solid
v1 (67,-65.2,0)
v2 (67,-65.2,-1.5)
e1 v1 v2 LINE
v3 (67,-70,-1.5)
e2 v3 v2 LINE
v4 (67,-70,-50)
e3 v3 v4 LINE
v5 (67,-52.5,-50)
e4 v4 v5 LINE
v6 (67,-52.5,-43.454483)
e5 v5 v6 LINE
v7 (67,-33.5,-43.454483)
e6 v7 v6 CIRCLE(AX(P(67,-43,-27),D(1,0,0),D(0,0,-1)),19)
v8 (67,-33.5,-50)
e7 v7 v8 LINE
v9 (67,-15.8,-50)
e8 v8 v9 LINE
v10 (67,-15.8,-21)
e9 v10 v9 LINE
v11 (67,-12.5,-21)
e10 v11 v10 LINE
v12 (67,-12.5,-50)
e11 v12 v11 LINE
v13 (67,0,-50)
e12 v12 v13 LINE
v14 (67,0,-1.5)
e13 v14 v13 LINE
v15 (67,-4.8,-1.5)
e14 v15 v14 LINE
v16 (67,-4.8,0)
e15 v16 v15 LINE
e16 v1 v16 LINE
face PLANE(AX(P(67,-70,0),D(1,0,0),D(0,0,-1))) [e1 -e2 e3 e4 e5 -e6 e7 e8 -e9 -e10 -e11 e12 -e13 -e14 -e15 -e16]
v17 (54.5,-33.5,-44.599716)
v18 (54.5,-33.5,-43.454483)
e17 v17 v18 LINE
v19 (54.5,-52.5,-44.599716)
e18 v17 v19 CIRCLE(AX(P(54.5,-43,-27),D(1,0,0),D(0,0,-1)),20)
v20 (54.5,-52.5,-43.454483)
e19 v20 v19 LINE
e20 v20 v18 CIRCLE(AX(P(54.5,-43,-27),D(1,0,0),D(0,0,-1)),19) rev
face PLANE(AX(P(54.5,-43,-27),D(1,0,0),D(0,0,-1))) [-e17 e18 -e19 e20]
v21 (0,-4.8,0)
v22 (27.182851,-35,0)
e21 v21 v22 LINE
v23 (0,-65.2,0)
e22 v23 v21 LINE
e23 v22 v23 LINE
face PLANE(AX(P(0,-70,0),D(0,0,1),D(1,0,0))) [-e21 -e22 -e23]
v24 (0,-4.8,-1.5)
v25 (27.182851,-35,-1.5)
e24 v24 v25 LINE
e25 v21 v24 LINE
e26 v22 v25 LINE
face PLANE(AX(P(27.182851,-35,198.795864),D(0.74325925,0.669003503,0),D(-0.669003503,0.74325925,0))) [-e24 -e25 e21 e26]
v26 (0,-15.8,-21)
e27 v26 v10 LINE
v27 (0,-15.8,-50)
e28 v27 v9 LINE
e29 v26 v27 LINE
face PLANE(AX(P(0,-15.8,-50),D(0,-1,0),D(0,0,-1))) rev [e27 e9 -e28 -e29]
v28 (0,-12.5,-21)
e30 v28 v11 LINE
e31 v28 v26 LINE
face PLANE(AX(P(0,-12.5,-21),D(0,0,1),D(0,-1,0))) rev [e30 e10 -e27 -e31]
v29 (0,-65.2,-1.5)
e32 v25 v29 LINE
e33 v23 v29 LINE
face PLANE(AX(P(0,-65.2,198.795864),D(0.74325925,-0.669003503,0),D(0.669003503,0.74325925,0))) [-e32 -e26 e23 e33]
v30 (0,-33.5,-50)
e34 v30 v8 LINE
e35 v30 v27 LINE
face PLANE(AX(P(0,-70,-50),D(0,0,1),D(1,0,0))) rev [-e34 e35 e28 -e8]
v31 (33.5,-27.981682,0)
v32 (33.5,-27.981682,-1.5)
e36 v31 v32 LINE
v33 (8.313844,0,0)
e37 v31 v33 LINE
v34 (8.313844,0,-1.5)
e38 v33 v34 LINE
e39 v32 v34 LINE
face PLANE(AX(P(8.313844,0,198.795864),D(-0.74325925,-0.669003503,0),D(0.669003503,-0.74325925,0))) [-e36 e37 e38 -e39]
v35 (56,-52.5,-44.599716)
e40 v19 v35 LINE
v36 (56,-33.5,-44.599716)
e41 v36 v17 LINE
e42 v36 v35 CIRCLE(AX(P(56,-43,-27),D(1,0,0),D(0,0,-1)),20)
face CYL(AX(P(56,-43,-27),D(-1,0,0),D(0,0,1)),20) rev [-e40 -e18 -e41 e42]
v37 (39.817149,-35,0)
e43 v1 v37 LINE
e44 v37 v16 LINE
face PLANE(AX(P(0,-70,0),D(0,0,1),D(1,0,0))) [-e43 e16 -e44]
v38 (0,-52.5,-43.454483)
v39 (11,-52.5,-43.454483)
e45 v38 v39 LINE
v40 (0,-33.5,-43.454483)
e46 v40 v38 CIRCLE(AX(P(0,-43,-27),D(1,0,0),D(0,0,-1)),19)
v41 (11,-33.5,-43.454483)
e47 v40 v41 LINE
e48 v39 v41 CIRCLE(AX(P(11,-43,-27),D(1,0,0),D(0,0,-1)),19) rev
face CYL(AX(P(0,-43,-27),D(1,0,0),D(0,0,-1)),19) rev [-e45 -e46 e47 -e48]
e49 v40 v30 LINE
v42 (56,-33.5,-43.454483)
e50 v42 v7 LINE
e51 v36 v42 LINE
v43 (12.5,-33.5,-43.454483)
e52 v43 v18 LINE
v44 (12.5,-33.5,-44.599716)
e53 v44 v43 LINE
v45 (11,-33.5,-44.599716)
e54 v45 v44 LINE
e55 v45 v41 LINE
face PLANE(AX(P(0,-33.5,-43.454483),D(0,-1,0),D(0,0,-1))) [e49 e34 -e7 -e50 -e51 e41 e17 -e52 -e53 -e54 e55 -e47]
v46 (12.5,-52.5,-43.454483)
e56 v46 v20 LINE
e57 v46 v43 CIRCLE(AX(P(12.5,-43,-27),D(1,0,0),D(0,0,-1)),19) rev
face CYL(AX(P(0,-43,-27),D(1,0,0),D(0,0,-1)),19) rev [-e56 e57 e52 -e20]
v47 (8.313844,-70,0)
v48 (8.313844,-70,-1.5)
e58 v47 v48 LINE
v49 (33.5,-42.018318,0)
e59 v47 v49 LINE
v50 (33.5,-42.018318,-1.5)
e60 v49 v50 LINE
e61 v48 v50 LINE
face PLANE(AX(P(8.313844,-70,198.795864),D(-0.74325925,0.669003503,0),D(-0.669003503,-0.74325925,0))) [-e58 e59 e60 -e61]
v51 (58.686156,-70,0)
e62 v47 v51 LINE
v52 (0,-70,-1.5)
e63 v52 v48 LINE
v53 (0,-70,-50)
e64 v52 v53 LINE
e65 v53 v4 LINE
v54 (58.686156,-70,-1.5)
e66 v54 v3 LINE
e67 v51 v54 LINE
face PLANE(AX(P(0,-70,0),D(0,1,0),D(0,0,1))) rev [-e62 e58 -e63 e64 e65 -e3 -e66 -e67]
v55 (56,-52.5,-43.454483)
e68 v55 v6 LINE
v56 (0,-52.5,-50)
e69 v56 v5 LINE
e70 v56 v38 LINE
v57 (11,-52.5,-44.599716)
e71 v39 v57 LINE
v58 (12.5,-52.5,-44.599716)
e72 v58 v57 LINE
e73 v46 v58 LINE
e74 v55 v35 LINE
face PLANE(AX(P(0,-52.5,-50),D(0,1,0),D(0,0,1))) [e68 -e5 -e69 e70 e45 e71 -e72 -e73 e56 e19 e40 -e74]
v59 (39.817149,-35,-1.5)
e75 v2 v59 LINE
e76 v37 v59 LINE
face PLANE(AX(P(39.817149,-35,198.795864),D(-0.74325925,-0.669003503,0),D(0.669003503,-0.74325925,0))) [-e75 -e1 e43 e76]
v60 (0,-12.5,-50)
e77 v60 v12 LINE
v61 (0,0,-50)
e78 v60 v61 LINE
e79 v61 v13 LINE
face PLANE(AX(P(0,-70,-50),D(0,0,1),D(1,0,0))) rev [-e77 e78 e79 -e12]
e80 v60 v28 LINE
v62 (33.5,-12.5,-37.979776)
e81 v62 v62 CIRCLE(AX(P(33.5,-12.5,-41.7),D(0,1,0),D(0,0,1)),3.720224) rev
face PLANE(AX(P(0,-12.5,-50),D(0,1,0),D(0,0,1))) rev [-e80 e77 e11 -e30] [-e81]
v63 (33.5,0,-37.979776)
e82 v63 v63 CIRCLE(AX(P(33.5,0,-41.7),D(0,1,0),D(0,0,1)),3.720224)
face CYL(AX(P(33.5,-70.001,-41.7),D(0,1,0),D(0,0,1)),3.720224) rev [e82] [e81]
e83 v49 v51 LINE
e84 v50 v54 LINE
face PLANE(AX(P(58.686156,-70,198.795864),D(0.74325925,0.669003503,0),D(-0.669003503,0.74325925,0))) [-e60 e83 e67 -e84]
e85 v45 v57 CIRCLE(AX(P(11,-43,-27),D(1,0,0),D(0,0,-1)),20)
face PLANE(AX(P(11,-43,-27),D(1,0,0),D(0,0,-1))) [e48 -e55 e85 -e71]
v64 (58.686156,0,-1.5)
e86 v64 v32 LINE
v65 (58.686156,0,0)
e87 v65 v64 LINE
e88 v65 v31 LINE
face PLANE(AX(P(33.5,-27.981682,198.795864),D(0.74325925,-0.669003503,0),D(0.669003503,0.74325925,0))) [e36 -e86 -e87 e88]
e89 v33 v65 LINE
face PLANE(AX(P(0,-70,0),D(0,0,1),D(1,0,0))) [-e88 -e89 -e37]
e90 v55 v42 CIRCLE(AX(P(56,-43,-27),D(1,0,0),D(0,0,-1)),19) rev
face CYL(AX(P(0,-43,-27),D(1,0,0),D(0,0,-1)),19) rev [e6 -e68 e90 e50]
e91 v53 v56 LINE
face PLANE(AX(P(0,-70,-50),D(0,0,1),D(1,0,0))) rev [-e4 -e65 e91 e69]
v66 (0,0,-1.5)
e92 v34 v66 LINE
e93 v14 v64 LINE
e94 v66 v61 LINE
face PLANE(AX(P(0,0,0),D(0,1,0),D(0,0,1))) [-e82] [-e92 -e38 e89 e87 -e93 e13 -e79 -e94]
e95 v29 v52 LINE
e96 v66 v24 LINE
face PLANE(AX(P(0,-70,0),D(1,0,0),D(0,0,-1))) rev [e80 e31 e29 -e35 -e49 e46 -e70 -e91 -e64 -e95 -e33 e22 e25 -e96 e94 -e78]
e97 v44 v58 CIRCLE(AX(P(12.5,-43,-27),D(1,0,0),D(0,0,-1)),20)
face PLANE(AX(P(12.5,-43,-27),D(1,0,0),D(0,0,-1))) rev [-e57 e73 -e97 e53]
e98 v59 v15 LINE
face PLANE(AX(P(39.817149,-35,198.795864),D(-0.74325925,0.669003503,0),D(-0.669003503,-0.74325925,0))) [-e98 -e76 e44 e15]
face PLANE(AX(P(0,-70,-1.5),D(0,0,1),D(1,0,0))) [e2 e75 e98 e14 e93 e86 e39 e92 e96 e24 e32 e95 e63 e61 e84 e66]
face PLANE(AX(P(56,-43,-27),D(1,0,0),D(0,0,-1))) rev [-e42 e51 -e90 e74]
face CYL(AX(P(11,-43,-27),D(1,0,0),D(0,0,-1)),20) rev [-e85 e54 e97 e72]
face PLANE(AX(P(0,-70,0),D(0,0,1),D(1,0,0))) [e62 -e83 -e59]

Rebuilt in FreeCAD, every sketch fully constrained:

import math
import FreeCAD as App
import Part
import Sketcher
from FreeCAD import Vector


def add_polygon(sketch, points):
    """Adds a closed chain of lines whose ends are joined by coincident constraints."""
    first, n = sketch.GeometryCount, len(points)
    for a, b in zip(points, points[1:] + points[:1]):
        sketch.addGeometry(Part.LineSegment(App.Vector(*a, 0), App.Vector(*b, 0)), False)
    for i in range(n):
        sketch.addConstraint(Sketcher.Constraint("Coincident", first + i, 2, first + (i + 1) % n, 1))

doc = App.newDocument("Part")
params = doc.addObject("Spreadsheet::Sheet", "Params")
for row, (alias, value) in enumerate([
    ("sketch1_width", "67 mm"),
    ("sketch1_height", "50 mm"),
    ("pad1_length", "70 mm"),
    ("sketch2_height", "4.8 mm"),
    ("pocket1_length", "110.036691 mm"),
    ("pocket1_length2", "1.5 mm"),
    ("sketch3_radius", "19 mm"),
    ("sketch3_width", "19 mm"),
    ("sketch4_height", "29 mm"),
    ("sketch4_width", "3.3 mm"),
    ("sketch6_diameter", "40 mm"),
    ("pocket5_length", "1.5 mm"),
    ("sketch7_diameter", "40 mm"),
    ("pocket6_length", "1.5 mm"),
], start=1):
    params.set(f"A{row}", alias)
    params.set(f"B{row}", "=" + value)
    params.setAlias(f"B{row}", alias)

body = doc.addObject("PartDesign::Body", "Body")

sketch1 = body.newObject("Sketcher::SketchObject", "Sketch")
sketch1.AttachmentSupport = (doc.getObject("XZ_Plane"), [""])
sketch1.MapMode = "FlatFace"
add_polygon(sketch1, [(0, -50), (0, 0), (67, 0), (67, -50)])
sketch1.addConstraint(Sketcher.Constraint("Vertical", 0))
sketch1.addConstraint(Sketcher.Constraint("Horizontal", 1))
sketch1.addConstraint(Sketcher.Constraint("Vertical", 2))
sketch1.addConstraint(Sketcher.Constraint("Horizontal", 3))
sketch1.addConstraint(Sketcher.Constraint("Coincident", 0, 2, -1, 1))
sketch1.addConstraint(Sketcher.Constraint("DistanceX", 1, 1, 1, 2, 67.0))
sketch1.addConstraint(Sketcher.Constraint("DistanceY", 0, 1, 0, 2, 50.0))
sketch1.setExpression("Constraints[9]", "Params.sketch1_width")
sketch1.setExpression("Constraints[10]", "Params.sketch1_height")
pad1 = body.newObject("PartDesign::Pad", "Pad")
pad1.Profile = sketch1
pad1.setExpression("Length", "Params.pad1_length")

sketch2 = body.newObject("Sketcher::SketchObject", "Sketch001")
sketch2.AttachmentSupport = (doc.getObject("XY_Plane"), [""])
sketch2.MapMode = "FlatFace"
add_polygon(sketch2, [(27.2, -35), (0, -65.2), (0, -70), (8.3, -70), (33.5, -42), (58.7, -70), (67, -70), (67, -65.2), (39.8, -35), (67, -4.8), (67, 0), (58.7, 0), (33.5, -28), (8.3, 0), (0, 0), (0, -4.8)])
sketch2.addConstraint(Sketcher.Constraint("Vertical", 1))
sketch2.addConstraint(Sketcher.Constraint("Horizontal", 2))
sketch2.addConstraint(Sketcher.Constraint("Horizontal", 5))
sketch2.addConstraint(Sketcher.Constraint("Vertical", 6))
sketch2.addConstraint(Sketcher.Constraint("Vertical", 9))
sketch2.addConstraint(Sketcher.Constraint("Horizontal", 10))
sketch2.addConstraint(Sketcher.Constraint("Horizontal", 13))
sketch2.addConstraint(Sketcher.Constraint("Vertical", 14))
sketch2.addConstraint(Sketcher.Constraint("Coincident", 13, 2, -1, 1))
sketch2.addConstraint(Sketcher.Constraint("PointOnObject", 0, 2, -2))
sketch2.addConstraint(Sketcher.Constraint("PointOnObject", 9, 2, -1))
sketch2.addConstraint(Sketcher.Constraint("Parallel", 0, 3))
sketch2.addConstraint(Sketcher.Constraint("Parallel", 4, 7))
sketch2.addConstraint(Sketcher.Constraint("Parallel", 3, 8))
sketch2.addConstraint(Sketcher.Constraint("Parallel", 8, 11))
sketch2.addConstraint(Sketcher.Constraint("Parallel", 7, 12))
sketch2.addConstraint(Sketcher.Constraint("Parallel", 12, 15))
sketch2.addConstraint(Sketcher.Constraint("Horizontal", 2, 2, 4, 2))
sketch2.addConstraint(Sketcher.Constraint("Horizontal", 0, 2, 6, 2))
sketch2.addConstraint(Sketcher.Constraint("Horizontal", 8, 2, 14, 2))
sketch2.addConstraint(Sketcher.Constraint("Horizontal", 7, 2, 15, 2))
sketch2.addConstraint(Sketcher.Constraint("Vertical", 6, 2, 8, 2))
sketch2.addConstraint(Sketcher.Constraint("Vertical", 4, 2, 10, 2))
sketch2.addConstraint(Sketcher.Constraint("Vertical", 3, 2, 11, 2))
sketch2.addConstraint(Sketcher.Constraint("Equal", 2, 5))
sketch2.addConstraint(Sketcher.Constraint("Equal", 6, 9))
sketch2.addConstraint(Sketcher.Constraint("DistanceY", 1, 2, 1, 1, 4.8))
sketch2.addConstraint(Sketcher.Constraint("DistanceY", 1, 2, -1, 1, 70.0))
sketch2.addConstraint(Sketcher.Constraint("DistanceX", -1, 1, 5, 2, 67.0))
sketch2.addConstraint(Sketcher.Constraint("Distance", 3, 37.647271))
sketch2.addConstraint(Sketcher.Constraint("DistanceX", 2, 1, 2, 2, 8.313844))
sketch2.setExpression("Constraints[42]", "Params.sketch2_height")
pocket1 = body.newObject("PartDesign::Pocket", "Pocket")
pocket1.Profile = sketch2
pocket1.Type = "TwoLengths"
pocket1.setExpression("Length", "Params.pocket1_length")
pocket1.setExpression("Length2", "Params.pocket1_length2")
pocket1.Reversed = True

sketch3 = body.newObject("Sketcher::SketchObject", "Sketch002")
sketch3.AttachmentSupport = (doc.getObject("YZ_Plane"), [""])
sketch3.MapMode = "FlatFace"
sketch3.AttachmentOffset = App.Placement(Vector(0, 0, 67), App.Rotation())
sketch3.addGeometry(Part.LineSegment(Vector(-34, -50, 0), Vector(-34, -43, 0)), False)
sketch3.addGeometry(Part.ArcOfCircle(Part.Circle(Vector(-43, -27, 0), Vector(0, 0, 1), 19), math.radians(-60), math.radians(240)), False)
sketch3.addGeometry(Part.LineSegment(Vector(-52, -43, 0), Vector(-52, -50, 0)), False)
sketch3.addGeometry(Part.LineSegment(Vector(-52, -50, 0), Vector(-34, -50, 0)), False)
sketch3.addConstraint(Sketcher.Constraint("Coincident", 0, 2, 1, 1))
sketch3.addConstraint(Sketcher.Constraint("Coincident", 1, 2, 2, 1))
sketch3.addConstraint(Sketcher.Constraint("Coincident", 2, 2, 3, 1))
sketch3.addConstraint(Sketcher.Constraint("Coincident", 3, 2, 0, 1))
sketch3.addConstraint(Sketcher.Constraint("Vertical", 0))
sketch3.addConstraint(Sketcher.Constraint("Vertical", 2))
sketch3.addConstraint(Sketcher.Constraint("Horizontal", 3))
sketch3.addConstraint(Sketcher.Constraint("Horizontal", 0, 2, 1, 2))
sketch3.addConstraint(Sketcher.Constraint("Radius", 1, 19.0))
sketch3.addConstraint(Sketcher.Constraint("DistanceX", 3, 1, 3, 2, 19.0))
sketch3.addConstraint(Sketcher.Constraint("DistanceX", 1, 3, -1, 1, 43.0))
sketch3.addConstraint(Sketcher.Constraint("DistanceY", 1, 3, -1, 1, 27.0))
sketch3.addConstraint(Sketcher.Constraint("DistanceY", 2, 2, -1, 1, 50.0))
sketch3.setExpression("Constraints[8]", "Params.sketch3_radius")
sketch3.setExpression("Constraints[9]", "Params.sketch3_width")
pocket2 = body.newObject("PartDesign::Pocket", "Pocket001")
pocket2.Profile = sketch3
pocket2.Type = "ThroughAll"

sketch4 = body.newObject("Sketcher::SketchObject", "Sketch003")
sketch4.AttachmentSupport = (doc.getObject("YZ_Plane"), [""])
sketch4.MapMode = "FlatFace"
sketch4.AttachmentOffset = App.Placement(Vector(0, 0, 67), App.Rotation())
add_polygon(sketch4, [(-12.5, -21), (-15.8, -21), (-15.8, -50), (-12.5, -50)])
sketch4.addConstraint(Sketcher.Constraint("Horizontal", 0))
sketch4.addConstraint(Sketcher.Constraint("Vertical", 1))
sketch4.addConstraint(Sketcher.Constraint("Horizontal", 2))
sketch4.addConstraint(Sketcher.Constraint("Vertical", 3))
sketch4.addConstraint(Sketcher.Constraint("DistanceY", 1, 2, 1, 1, 29.0))
sketch4.addConstraint(Sketcher.Constraint("DistanceX", 0, 2, 0, 1, 3.3))
sketch4.addConstraint(Sketcher.Constraint("DistanceY", 0, 2, -1, 1, 21.0))
sketch4.addConstraint(Sketcher.Constraint("DistanceX", 0, 2, -1, 1, 15.8))
sketch4.setExpression("Constraints[8]", "Params.sketch4_height")
sketch4.setExpression("Constraints[9]", "Params.sketch4_width")
pocket3 = body.newObject("PartDesign::Pocket", "Pocket002")
pocket3.Profile = sketch4
pocket3.Type = "ThroughAll"

sketch5 = body.newObject("Sketcher::SketchObject", "Sketch004")
sketch5.AttachmentSupport = (doc.getObject("XZ_Plane"), [""])
sketch5.MapMode = "FlatFace"
sketch5.addGeometry(Part.Circle(Vector(33.5, -41.7, 0), Vector(0, 0, 1), 3.7), False)
sketch5.addConstraint(Sketcher.Constraint("DistanceX", -1, 1, 0, 3, 33.5))
sketch5.addConstraint(Sketcher.Constraint("DistanceY", 0, 3, -1, 1, 41.7))
sketch5.addConstraint(Sketcher.Constraint("Diameter", 0, 7.440447))
pocket4 = body.newObject("PartDesign::Pocket", "Pocket003")
pocket4.Profile = sketch5
pocket4.Type = "UpToFirst"
pocket4.Reversed = True

sketch6 = body.newObject("Sketcher::SketchObject", "Sketch005")
sketch6.AttachmentSupport = (doc.getObject("YZ_Plane"), [""])
sketch6.MapMode = "FlatFace"
sketch6.AttachmentOffset = App.Placement(Vector(0, 0, 54.5), App.Rotation())
sketch6.addGeometry(Part.Circle(Vector(-43, -27, 0), Vector(0, 0, 1), 20), False)
sketch6.addConstraint(Sketcher.Constraint("Diameter", 0, 40.0))
sketch6.addConstraint(Sketcher.Constraint("DistanceX", 0, 3, -1, 1, 43.0))
sketch6.addConstraint(Sketcher.Constraint("DistanceY", 0, 3, -1, 1, 27.0))
sketch6.setExpression("Constraints[0]", "Params.sketch6_diameter")
pocket5 = body.newObject("PartDesign::Pocket", "Pocket004")
pocket5.Profile = sketch6
pocket5.setExpression("Length", "Params.pocket5_length")
pocket5.Reversed = True

sketch7 = body.newObject("Sketcher::SketchObject", "Sketch006")
sketch7.AttachmentSupport = (doc.getObject("YZ_Plane"), [""])
sketch7.MapMode = "FlatFace"
sketch7.AttachmentOffset = App.Placement(Vector(0, 0, 11), App.Rotation())
sketch7.addGeometry(Part.Circle(Vector(-43, -27, 0), Vector(0, 0, 1), 20), False)
sketch7.addConstraint(Sketcher.Constraint("Diameter", 0, 40.0))
sketch7.addConstraint(Sketcher.Constraint("DistanceX", 0, 3, -1, 1, 43.0))
sketch7.addConstraint(Sketcher.Constraint("DistanceY", 0, 3, -1, 1, 27.0))
sketch7.setExpression("Constraints[0]", "Params.sketch7_diameter")
pocket6 = body.newObject("PartDesign::Pocket", "Pocket005")
pocket6.Profile = sketch7
pocket6.setExpression("Length", "Params.pocket6_length")
pocket6.Reversed = True

doc.recompute()
